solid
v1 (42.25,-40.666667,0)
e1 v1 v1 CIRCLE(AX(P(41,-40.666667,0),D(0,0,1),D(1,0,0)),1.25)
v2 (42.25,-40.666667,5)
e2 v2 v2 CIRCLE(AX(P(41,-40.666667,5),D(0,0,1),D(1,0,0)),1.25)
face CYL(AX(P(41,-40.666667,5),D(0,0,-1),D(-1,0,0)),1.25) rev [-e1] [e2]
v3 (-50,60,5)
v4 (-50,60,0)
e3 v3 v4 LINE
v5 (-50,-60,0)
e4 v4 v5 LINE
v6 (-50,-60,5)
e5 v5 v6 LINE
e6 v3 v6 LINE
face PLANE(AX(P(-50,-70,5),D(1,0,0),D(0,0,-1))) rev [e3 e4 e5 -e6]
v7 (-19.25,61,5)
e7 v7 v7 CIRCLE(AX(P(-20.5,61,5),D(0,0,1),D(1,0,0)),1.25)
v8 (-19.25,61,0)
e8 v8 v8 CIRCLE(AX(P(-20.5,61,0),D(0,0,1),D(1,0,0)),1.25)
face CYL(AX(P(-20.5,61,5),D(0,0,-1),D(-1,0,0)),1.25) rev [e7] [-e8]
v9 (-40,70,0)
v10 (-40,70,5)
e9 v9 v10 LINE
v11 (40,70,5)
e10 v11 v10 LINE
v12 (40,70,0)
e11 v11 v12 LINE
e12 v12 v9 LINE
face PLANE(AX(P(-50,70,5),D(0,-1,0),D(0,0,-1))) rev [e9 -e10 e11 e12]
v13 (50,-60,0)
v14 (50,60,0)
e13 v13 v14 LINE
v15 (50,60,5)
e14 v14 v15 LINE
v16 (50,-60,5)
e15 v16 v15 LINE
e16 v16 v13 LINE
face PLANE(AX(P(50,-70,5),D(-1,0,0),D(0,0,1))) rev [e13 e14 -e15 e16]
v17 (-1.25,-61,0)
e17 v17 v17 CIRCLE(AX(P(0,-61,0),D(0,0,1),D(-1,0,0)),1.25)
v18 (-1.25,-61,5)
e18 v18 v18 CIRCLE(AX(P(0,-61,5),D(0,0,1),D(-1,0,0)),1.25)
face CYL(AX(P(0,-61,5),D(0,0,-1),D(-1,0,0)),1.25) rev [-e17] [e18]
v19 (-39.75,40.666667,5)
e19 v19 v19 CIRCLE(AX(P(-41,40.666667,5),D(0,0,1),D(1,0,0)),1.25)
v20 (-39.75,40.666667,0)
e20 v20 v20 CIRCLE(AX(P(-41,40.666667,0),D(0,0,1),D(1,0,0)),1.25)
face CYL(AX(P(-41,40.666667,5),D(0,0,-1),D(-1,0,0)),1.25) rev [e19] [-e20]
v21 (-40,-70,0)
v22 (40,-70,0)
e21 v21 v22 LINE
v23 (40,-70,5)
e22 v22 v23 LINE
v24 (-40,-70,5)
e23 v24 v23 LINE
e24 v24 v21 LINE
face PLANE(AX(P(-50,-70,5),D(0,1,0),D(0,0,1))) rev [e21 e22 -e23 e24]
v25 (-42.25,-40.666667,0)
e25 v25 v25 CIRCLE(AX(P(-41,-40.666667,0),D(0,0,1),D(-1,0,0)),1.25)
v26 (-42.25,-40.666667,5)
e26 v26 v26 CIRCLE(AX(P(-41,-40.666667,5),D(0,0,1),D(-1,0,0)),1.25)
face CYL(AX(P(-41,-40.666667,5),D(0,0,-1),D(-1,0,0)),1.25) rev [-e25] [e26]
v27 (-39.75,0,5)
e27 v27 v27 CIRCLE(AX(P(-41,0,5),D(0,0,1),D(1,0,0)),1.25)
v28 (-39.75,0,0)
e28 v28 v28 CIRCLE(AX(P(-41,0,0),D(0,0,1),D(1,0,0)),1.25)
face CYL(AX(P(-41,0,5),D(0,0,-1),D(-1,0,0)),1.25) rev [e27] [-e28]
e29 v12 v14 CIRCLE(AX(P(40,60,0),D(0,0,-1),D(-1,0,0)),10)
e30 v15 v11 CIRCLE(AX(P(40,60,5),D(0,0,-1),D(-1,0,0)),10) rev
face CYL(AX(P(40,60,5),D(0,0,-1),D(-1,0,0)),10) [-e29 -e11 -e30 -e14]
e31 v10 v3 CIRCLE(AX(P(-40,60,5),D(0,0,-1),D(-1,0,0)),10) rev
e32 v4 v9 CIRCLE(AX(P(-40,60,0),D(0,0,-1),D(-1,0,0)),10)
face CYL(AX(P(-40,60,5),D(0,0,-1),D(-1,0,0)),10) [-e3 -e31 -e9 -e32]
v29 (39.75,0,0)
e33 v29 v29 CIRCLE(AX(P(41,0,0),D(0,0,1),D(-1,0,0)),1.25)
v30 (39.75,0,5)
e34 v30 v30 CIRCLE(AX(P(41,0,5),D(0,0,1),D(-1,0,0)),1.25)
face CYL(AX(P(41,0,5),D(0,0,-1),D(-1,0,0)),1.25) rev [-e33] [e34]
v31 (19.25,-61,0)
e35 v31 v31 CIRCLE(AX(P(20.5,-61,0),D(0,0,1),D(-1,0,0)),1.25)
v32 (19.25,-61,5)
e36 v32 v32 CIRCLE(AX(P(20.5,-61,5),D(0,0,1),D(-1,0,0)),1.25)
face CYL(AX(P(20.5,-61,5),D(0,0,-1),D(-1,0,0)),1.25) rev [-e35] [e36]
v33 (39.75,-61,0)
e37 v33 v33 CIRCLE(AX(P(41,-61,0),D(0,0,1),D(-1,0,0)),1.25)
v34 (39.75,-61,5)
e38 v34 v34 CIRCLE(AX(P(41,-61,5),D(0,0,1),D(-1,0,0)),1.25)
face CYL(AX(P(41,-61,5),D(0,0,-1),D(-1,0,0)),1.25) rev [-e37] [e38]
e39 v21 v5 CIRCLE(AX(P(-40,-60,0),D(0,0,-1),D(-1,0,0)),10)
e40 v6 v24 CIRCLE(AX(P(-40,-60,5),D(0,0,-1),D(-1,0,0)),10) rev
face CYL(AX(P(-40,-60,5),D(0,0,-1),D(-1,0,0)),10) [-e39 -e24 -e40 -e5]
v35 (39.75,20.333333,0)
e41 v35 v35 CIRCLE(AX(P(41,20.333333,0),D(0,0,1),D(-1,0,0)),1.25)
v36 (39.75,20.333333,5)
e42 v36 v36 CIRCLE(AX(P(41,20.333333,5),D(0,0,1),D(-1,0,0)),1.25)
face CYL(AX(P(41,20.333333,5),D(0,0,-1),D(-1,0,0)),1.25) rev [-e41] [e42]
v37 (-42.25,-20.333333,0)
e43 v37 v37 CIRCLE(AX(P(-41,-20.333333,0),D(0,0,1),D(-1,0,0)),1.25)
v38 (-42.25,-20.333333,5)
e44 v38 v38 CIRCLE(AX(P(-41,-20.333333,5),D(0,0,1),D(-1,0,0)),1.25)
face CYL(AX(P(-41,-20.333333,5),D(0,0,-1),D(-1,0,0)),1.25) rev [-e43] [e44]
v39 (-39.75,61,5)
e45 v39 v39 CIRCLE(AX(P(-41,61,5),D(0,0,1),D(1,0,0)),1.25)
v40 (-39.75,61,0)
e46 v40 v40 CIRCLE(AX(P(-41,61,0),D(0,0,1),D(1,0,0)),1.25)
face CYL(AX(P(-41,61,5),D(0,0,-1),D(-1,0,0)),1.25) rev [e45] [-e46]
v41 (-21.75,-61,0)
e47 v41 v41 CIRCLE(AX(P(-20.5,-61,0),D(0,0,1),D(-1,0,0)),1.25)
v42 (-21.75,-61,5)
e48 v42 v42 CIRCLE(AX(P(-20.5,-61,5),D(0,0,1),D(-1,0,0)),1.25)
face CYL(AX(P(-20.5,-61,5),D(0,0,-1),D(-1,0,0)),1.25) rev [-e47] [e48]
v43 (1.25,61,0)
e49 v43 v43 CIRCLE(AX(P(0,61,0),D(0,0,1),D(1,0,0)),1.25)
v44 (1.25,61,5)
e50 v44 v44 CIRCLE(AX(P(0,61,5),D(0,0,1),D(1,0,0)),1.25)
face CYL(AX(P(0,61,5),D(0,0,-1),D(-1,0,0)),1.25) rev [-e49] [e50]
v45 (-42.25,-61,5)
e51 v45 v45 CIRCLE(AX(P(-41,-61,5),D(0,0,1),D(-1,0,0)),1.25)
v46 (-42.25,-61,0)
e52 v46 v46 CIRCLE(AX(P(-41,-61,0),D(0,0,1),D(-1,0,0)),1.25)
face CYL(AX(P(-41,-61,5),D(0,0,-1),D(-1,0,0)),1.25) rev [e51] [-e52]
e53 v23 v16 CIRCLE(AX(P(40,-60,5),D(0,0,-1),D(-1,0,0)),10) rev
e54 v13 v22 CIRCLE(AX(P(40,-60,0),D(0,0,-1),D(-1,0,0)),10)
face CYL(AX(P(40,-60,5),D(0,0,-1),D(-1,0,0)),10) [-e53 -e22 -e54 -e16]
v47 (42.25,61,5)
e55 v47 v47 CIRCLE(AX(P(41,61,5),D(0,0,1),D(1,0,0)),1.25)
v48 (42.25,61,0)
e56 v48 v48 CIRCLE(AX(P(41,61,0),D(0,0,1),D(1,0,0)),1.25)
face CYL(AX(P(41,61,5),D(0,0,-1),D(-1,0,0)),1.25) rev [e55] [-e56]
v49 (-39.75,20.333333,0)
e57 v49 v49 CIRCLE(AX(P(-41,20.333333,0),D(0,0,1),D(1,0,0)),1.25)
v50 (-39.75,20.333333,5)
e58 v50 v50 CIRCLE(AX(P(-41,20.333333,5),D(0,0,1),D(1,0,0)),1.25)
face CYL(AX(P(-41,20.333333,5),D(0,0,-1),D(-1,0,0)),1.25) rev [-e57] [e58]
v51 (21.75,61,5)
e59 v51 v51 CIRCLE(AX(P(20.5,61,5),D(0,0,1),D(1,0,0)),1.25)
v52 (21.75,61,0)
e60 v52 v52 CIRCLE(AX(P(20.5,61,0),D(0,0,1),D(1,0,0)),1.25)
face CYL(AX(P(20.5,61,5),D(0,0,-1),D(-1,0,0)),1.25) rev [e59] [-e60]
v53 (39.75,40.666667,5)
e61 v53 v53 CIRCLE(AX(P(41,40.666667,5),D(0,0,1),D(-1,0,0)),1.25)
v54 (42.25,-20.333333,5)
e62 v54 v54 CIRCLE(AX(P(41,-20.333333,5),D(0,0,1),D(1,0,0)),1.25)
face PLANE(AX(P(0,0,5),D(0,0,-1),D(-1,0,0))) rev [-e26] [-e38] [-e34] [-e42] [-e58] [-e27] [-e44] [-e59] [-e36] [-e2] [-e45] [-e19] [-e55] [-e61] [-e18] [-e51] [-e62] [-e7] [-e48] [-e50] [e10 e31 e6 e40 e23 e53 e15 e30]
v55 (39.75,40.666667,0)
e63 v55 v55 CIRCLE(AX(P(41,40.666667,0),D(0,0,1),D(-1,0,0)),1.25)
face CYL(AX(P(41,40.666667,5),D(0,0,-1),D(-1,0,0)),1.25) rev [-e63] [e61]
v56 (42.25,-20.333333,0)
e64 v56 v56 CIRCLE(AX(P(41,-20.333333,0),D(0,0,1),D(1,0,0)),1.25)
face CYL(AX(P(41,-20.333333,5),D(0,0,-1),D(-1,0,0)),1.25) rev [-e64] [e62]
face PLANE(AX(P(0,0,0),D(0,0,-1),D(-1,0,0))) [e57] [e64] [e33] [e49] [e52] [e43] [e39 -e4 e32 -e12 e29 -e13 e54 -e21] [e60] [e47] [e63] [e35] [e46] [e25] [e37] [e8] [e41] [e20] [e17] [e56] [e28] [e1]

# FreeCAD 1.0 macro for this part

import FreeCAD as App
import Part
import Sketcher
Q = App.Units.Quantity


def edges_at(feature, points):
    """Names of the edges that pass closest to the given points."""
    edges = feature.Shape.Edges
    near = lambda p: min(range(len(edges)), key=lambda i: edges[i].distToShape(Part.Vertex(*p))[0])
    return sorted({f"Edge{near(p) + 1}" for p in points})


def add_polygon(sketch, points):
    """Adds a closed chain of lines whose ends are joined by coincident constraints."""
    first, n = sketch.GeometryCount, len(points)
    for a, b in zip(points, points[1:] + points[:1]):
        sketch.addGeometry(Part.LineSegment(App.Vector(*a, 0), App.Vector(*b, 0)), False)
    for i in range(n):
        sketch.addConstraint(Sketcher.Constraint("Coincident", first + i, 2, first + (i + 1) % n, 1))

doc = App.newDocument("Part")
params = doc.addObject("Spreadsheet::Sheet", "Params")
for row, (alias, value) in enumerate([
    ("sketch1_diameter", "2.5 mm"),
    ("sketch1_width", "100 mm"),
    ("sketch1_height", "140 mm"),
    ("pad1_length", "5 mm"),
    ("fillet_radius", "10 mm"),
], start=1):
    params.set(f"A{row}", alias)
    params.set(f"B{row}", "=" + value)
    params.setAlias(f"B{row}", alias)

body = doc.addObject("PartDesign::Body", "Body")

# Sketch on XY plane
sketch1 = body.newObject("Sketcher::SketchObject", "Sketch")
sketch1.AttachmentSupport = (doc.getObject("XY_Plane"), [""])
sketch1.MapMode = "FlatFace"
add_polygon(sketch1, [(-50, 70), (-50, -70), (50, -70), (50, 70)])  # lines 0-3
sketch1.addGeometry(Part.Circle(App.Vector(-41, -61, 0), App.Vector(0, 0, 1), 1.2), False)  # 4
sketch1.addGeometry(Part.Circle(App.Vector(-41, -40.7, 0), App.Vector(0, 0, 1), 1.2), False)  # 5
sketch1.addGeometry(Part.Circle(App.Vector(-20.5, -61, 0), App.Vector(0, 0, 1), 1.2), False)  # 6
sketch1.addGeometry(Part.Circle(App.Vector(-41, -20.3, 0), App.Vector(0, 0, 1), 1.2), False)  # 7
sketch1.addGeometry(Part.Circle(App.Vector(-41, 0, 0), App.Vector(0, 0, 1), 1.2), False)  # 8
sketch1.addGeometry(Part.Circle(App.Vector(0, -61, 0), App.Vector(0, 0, 1), 1.2), False)  # 9
sketch1.addGeometry(Part.Circle(App.Vector(20.5, -61, 0), App.Vector(0, 0, 1), 1.2), False)  # 10
sketch1.addGeometry(Part.Circle(App.Vector(41, -61, 0), App.Vector(0, 0, 1), 1.2), False)  # 11
sketch1.addGeometry(Part.Circle(App.Vector(41, -40.7, 0), App.Vector(0, 0, 1), 1.2), False)  # 12
sketch1.addGeometry(Part.Circle(App.Vector(41, -20.3, 0), App.Vector(0, 0, 1), 1.2), False)  # 13
sketch1.addGeometry(Part.Circle(App.Vector(41, 0, 0), App.Vector(0, 0, 1), 1.2), False)  # 14
sketch1.addGeometry(Part.Circle(App.Vector(-41, 20.3, 0), App.Vector(0, 0, 1), 1.2), False)  # 15
sketch1.addGeometry(Part.Circle(App.Vector(-41, 40.7, 0), App.Vector(0, 0, 1), 1.2), False)  # 16
sketch1.addGeometry(Part.Circle(App.Vector(-41, 61, 0), App.Vector(0, 0, 1), 1.2), False)  # 17
sketch1.addGeometry(Part.Circle(App.Vector(-20.5, 61, 0), App.Vector(0, 0, 1), 1.2), False)  # 18
sketch1.addGeometry(Part.Circle(App.Vector(41, 20.3, 0), App.Vector(0, 0, 1), 1.2), False)  # 19
sketch1.addGeometry(Part.Circle(App.Vector(0, 61, 0), App.Vector(0, 0, 1), 1.2), False)  # 20
sketch1.addGeometry(Part.Circle(App.Vector(20.5, 61, 0), App.Vector(0, 0, 1), 1.2), False)  # 21
sketch1.addGeometry(Part.Circle(App.Vector(41, 40.7, 0), App.Vector(0, 0, 1), 1.2), False)  # 22
sketch1.addGeometry(Part.Circle(App.Vector(41, 61, 0), App.Vector(0, 0, 1), 1.2), False)  # 23
sketch1.addConstraint(Sketcher.Constraint("Vertical", 0))
sketch1.addConstraint(Sketcher.Constraint("Horizontal", 1))
sketch1.addConstraint(Sketcher.Constraint("Vertical", 2))
sketch1.addConstraint(Sketcher.Constraint("Horizontal", 3))
sketch1.addConstraint(Sketcher.Constraint("Equal", 4, 5))
sketch1.addConstraint(Sketcher.Constraint("Equal", 5, 6))
sketch1.addConstraint(Sketcher.Constraint("Equal", 6, 7))
sketch1.addConstraint(Sketcher.Constraint("Equal", 7, 8))
sketch1.addConstraint(Sketcher.Constraint("Equal", 8, 9))
sketch1.addConstraint(Sketcher.Constraint("Equal", 9, 10))
sketch1.addConstraint(Sketcher.Constraint("Equal", 10, 11))
sketch1.addConstraint(Sketcher.Constraint("Equal", 11, 12))
sketch1.addConstraint(Sketcher.Constraint("Equal", 12, 13))
sketch1.addConstraint(Sketcher.Constraint("Equal", 13, 14))
sketch1.addConstraint(Sketcher.Constraint("Equal", 14, 15))
sketch1.addConstraint(Sketcher.Constraint("Equal", 15, 16))
sketch1.addConstraint(Sketcher.Constraint("Equal", 16, 17))
sketch1.addConstraint(Sketcher.Constraint("Equal", 17, 18))
sketch1.addConstraint(Sketcher.Constraint("Equal", 18, 19))
sketch1.addConstraint(Sketcher.Constraint("Equal", 19, 20))
sketch1.addConstraint(Sketcher.Constraint("Equal", 20, 21))
sketch1.addConstraint(Sketcher.Constraint("Equal", 21, 22))
sketch1.addConstraint(Sketcher.Constraint("Equal", 22, 23))
sketch1.addConstraint(Sketcher.Constraint("Symmetric", 8, 3, 14, 3, -1, 1))
sketch1.addConstraint(Sketcher.Constraint("Symmetric", 13, 3, 15, 3, -1, 1))
sketch1.addConstraint(Sketcher.Constraint("Symmetric", 12, 3, 16, 3, -1, 1))
sketch1.addConstraint(Sketcher.Constraint("Symmetric", 11, 3, 17, 3, -1, 1))
sketch1.addConstraint(Sketcher.Constraint("Symmetric", 10, 3, 18, 3, -1, 1))
sketch1.addConstraint(Sketcher.Constraint("Symmetric", 7, 3, 19, 3, -1, 1))
sketch1.addConstraint(Sketcher.Constraint("Symmetric", 9, 3, 20, 3, -1, 1))
sketch1.addConstraint(Sketcher.Constraint("Symmetric", 6, 3, 21, 3, -1, 1))
sketch1.addConstraint(Sketcher.Constraint("Symmetric", 5, 3, 22, 3, -1, 1))
sketch1.addConstraint(Sketcher.Constraint("Symmetric", 4, 3, 23, 3, -1, 1))
sketch1.addConstraint(Sketcher.Constraint("Symmetric", 0, 2, 2, 2, -1, 1))
sketch1.addConstraint(Sketcher.Constraint("Symmetric", 6, 3, 10, 3, -2))
sketch1.addConstraint(Sketcher.Constraint("Symmetric", 4, 3, 11, 3, -2))
sketch1.addConstraint(Sketcher.Constraint("Symmetric", 5, 3, 12, 3, -2))
sketch1.addConstraint(Sketcher.Constraint("Symmetric", 7, 3, 13, 3, -2))
sketch1.addConstraint(Sketcher.Constraint("PointOnObject", 8, 3, -1))
sketch1.addConstraint(Sketcher.Constraint("PointOnObject", 9, 3, -2))
sketch1.addConstraint(Sketcher.Constraint("Horizontal", 4, 3, 6, 3))
sketch1.addConstraint(Sketcher.Constraint("Horizontal", 6, 3, 9, 3))
sketch1.addConstraint(Sketcher.Constraint("Vertical", 4, 3, 5, 3))
sketch1.addConstraint(Sketcher.Constraint("Vertical", 5, 3, 7, 3))
sketch1.addConstraint(Sketcher.Constraint("Vertical", 7, 3, 8, 3))
sketch1.addConstraint(Sketcher.Constraint("Diameter", 4, Q("2.5 mm")))
sketch1.addConstraint(Sketcher.Constraint("DistanceX", 1, 1, 1, 2, Q("100 mm")))
sketch1.addConstraint(Sketcher.Constraint("DistanceY", 0, 2, 0, 1, Q("140 mm")))
sketch1.addConstraint(Sketcher.Constraint("DistanceX", 4, 3, -1, 1, Q("41 mm")))
sketch1.addConstraint(Sketcher.Constraint("DistanceY", 4, 3, -1, 1, Q("61 mm")))
sketch1.addConstraint(Sketcher.Constraint("DistanceX", 6, 3, 10, 3, Q("41 mm")))
sketch1.addConstraint(Sketcher.Constraint("DistanceY", 5, 3, 15, 3, Q("61 mm")))
sketch1.addConstraint(Sketcher.Constraint("DistanceY", 5, 3, -1, 1, Q("40.666667 mm")))
sketch1.setExpression("Constraints[49]", "Params.sketch1_diameter")
sketch1.setExpression("Constraints[50]", "Params.sketch1_width")
sketch1.setExpression("Constraints[51]", "Params.sketch1_height")
pad1 = body.newObject("PartDesign::Pad", "Pad")
pad1.Profile = sketch1
pad1.setExpression("Length", "Params.pad1_length")
doc.recompute()

fillet = body.newObject("PartDesign::Fillet", "Fillet")
fillet.Base = (pad1, edges_at(pad1, [
    (50, -70, 2.5),
    (-50, -70, 2.5),
    (-50, 70, 2.5),
    (50, 70, 2.5),
]))
fillet.setExpression("Radius", "Params.fillet_radius")

doc.recompute()
